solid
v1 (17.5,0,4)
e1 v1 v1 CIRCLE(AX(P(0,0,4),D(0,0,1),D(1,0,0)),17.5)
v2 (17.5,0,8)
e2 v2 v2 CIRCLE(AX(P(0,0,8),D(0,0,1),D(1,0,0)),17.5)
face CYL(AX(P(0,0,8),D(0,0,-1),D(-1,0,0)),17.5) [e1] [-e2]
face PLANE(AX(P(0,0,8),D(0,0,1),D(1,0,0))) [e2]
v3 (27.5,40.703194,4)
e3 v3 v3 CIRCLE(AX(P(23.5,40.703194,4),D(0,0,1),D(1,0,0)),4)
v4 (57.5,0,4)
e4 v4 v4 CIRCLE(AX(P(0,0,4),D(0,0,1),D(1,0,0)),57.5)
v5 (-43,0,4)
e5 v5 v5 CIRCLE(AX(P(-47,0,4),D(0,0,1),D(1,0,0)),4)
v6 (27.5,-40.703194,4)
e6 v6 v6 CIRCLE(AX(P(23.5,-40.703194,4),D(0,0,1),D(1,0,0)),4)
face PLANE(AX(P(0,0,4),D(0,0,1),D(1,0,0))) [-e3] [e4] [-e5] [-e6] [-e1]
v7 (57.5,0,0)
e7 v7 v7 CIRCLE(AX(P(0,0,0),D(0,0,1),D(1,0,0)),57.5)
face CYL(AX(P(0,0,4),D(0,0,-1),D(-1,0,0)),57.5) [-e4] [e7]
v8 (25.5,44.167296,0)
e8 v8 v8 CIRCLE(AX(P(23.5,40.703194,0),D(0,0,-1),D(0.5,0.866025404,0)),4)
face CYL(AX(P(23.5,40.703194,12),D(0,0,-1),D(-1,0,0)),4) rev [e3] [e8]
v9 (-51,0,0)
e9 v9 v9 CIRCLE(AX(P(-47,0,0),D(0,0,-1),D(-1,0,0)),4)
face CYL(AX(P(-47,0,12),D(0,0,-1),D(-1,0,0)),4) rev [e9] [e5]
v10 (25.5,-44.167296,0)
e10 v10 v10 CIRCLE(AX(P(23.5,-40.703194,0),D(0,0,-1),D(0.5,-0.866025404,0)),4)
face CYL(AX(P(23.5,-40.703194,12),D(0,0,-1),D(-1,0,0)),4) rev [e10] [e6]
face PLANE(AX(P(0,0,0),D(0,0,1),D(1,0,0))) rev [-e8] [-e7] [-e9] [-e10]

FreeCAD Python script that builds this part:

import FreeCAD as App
import Part
import Sketcher
from FreeCAD import Vector
Q = App.Units.Quantity

doc = App.newDocument("Part")
body = doc.addObject("PartDesign::Body", "Body")

sketch1 = doc.addObject("Sketcher::SketchObject", "Sketch")
body.addObject(sketch1)
sketch1.AttachmentSupport = (doc.XY_Plane, [""])
sketch1.MapMode = "FlatFace"
sketch1.addGeometry(Part.Circle(Vector(0, 0, 0), Vector(0, 0, 1), 58), False)
sketch1.addConstraint([
    Sketcher.Constraint("Coincident", 0, 3, -1, 1),
    Sketcher.Constraint("Diameter", 0, Q("115 mm")),
])
pad1 = doc.addObject("PartDesign::Pad", "Pad")
body.addObject(pad1)
pad1.Profile = sketch1
pad1.Length = 4

sketch2 = doc.addObject("Sketcher::SketchObject", "Sketch001")
body.addObject(sketch2)
sketch2.AttachmentSupport = (doc.XY_Plane, [""])
sketch2.MapMode = "FlatFace"
sketch2.AttachmentOffset = App.Placement(Vector(0, 0, 4), App.Rotation())
sketch2.addGeometry(Part.Circle(Vector(0, 0, 0), Vector(0, 0, 1), 18), False)
sketch2.addConstraint([
    Sketcher.Constraint("Coincident", 0, 3, -1, 1),
    Sketcher.Constraint("Diameter", 0, Q("35 mm")),
])
pad2 = doc.addObject("PartDesign::Pad", "Pad001")
body.addObject(pad2)
pad2.Profile = sketch2
pad2.Length = 4

sketch3 = doc.addObject("Sketcher::SketchObject", "Sketch002")
body.addObject(sketch3)
sketch3.AttachmentSupport = (doc.XY_Plane, [""])
sketch3.MapMode = "FlatFace"
sketch3.addGeometry(Part.Circle(Vector(-47, 0, 0), Vector(0, 0, 1), 4), False)
sketch3.addConstraint([
    Sketcher.Constraint("PointOnObject", 0, 3, -1),
    Sketcher.Constraint("Diameter", 0, Q("8 mm")),
    Sketcher.Constraint("DistanceX", 0, 3, -1, 1, Q("47 mm")),
])
pocket1 = doc.addObject("PartDesign::Pocket", "Pocket")
body.addObject(pocket1)
pocket1.Profile = sketch3
pocket1.Length = 12
pocket1.Reversed = True
doc.recompute()

polarpattern = doc.addObject("PartDesign::PolarPattern", "PolarPattern")
body.addObject(polarpattern)
polarpattern.Originals = [pocket1]
polarpattern.Axis = (doc.Z_Axis, [""])
polarpattern.Angle = 360
polarpattern.Occurrences = 3
body.Tip = polarpattern

doc.recompute()
